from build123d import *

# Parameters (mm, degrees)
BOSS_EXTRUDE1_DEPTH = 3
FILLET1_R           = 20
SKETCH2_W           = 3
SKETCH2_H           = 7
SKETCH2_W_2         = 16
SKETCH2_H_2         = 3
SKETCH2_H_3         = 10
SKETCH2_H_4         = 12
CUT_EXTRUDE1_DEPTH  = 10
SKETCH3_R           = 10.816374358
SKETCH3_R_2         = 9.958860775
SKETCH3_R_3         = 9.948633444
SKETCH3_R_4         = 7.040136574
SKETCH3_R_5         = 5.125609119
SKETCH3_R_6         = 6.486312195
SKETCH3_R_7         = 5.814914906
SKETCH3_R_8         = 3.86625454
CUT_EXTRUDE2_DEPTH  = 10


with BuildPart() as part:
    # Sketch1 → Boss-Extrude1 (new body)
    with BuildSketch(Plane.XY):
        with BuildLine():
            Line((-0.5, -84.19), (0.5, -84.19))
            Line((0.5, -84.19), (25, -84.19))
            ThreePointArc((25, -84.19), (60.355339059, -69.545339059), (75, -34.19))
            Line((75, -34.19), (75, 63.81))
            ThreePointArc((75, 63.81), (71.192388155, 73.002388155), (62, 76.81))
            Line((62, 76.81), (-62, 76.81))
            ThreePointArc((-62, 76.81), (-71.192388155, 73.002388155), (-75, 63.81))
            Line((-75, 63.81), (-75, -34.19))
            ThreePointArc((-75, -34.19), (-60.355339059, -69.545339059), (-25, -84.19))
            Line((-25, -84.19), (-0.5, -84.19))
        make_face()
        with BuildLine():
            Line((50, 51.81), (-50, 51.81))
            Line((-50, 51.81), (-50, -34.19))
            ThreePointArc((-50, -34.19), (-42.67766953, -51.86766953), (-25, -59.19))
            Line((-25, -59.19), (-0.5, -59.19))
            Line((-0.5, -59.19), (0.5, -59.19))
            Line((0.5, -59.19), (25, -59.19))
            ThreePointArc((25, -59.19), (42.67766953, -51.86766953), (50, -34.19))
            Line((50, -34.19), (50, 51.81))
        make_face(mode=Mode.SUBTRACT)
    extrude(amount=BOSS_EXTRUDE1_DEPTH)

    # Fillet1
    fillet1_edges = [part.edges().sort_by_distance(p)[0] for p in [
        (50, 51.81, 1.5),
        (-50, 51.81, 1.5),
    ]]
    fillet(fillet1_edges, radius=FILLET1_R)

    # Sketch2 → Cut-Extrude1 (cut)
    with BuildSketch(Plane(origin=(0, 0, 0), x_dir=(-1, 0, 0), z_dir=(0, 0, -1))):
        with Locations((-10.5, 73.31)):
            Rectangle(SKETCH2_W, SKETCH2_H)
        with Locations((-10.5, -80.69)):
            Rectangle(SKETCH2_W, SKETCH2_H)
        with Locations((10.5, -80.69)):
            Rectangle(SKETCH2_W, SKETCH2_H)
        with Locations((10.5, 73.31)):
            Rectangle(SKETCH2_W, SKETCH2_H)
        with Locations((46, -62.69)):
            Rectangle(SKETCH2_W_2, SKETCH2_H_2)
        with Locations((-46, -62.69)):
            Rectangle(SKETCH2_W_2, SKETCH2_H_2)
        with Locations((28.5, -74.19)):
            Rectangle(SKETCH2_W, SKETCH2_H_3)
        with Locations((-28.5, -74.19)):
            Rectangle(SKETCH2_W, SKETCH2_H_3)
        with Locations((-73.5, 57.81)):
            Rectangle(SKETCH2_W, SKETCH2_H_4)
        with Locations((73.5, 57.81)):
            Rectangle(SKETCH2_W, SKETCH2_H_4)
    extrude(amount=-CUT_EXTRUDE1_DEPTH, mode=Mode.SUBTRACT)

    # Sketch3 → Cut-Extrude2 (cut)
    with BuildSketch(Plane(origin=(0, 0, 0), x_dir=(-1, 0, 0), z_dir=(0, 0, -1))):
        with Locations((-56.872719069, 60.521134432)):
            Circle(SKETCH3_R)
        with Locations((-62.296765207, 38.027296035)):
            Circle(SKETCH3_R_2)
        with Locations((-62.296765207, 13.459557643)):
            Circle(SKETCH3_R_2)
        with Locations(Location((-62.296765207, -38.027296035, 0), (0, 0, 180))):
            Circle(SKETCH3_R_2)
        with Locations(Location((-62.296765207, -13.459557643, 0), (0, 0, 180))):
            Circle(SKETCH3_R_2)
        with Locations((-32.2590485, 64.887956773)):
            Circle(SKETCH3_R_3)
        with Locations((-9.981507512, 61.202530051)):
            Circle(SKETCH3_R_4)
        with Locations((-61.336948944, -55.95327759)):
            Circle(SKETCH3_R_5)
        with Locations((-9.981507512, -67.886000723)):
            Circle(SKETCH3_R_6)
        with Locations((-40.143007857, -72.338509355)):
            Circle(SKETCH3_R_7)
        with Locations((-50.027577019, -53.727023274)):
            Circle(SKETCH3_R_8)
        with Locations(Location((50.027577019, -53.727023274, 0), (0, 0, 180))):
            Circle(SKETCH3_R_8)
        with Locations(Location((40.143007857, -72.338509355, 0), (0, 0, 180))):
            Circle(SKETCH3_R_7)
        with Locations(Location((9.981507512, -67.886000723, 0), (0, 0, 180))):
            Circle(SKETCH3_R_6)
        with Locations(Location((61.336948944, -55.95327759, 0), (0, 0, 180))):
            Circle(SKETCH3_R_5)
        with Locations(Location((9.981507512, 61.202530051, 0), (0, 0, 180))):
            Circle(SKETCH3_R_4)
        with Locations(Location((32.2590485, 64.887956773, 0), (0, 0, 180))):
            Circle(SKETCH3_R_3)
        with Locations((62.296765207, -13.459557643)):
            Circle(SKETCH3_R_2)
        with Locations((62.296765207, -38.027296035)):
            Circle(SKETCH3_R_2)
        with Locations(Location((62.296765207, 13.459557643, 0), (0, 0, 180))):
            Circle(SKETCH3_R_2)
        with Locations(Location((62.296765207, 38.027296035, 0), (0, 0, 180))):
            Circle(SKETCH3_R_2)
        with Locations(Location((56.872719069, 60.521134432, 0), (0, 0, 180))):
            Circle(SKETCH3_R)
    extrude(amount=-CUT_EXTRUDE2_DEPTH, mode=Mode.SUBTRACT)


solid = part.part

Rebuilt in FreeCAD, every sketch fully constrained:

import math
import FreeCAD as App
import Part
import Sketcher
from FreeCAD import Vector


def edges_at(feature, points):
    """Names of the edges that pass closest to the given points."""
    edges = feature.Shape.Edges
    near = lambda p: min(range(len(edges)), key=lambda i: edges[i].distToShape(Part.Vertex(*p))[0])
    return sorted({f"Edge{near(p) + 1}" for p in points})


def add_polygon(sketch, points):
    """Adds a closed chain of lines whose ends are joined by coincident constraints."""
    first, n = sketch.GeometryCount, len(points)
    for a, b in zip(points, points[1:] + points[:1]):
        sketch.addGeometry(Part.LineSegment(App.Vector(*a, 0), App.Vector(*b, 0)), False)
    for i in range(n):
        sketch.addConstraint(Sketcher.Constraint("Coincident", first + i, 2, first + (i + 1) % n, 1))

doc = App.newDocument("Part")
params = doc.addObject("Spreadsheet::Sheet", "Params")
for row, (alias, value) in enumerate([
    ("sketch1_radius", "50 mm"),
    ("sketch1_radius2", "13 mm"),
    ("sketch1_radius3", "25 mm"),
    ("sketch1_width", "124 mm"),
    ("sketch1_height", "98 mm"),
    ("pad1_length", "3 mm"),
    ("fillet_radius", "20 mm"),
    ("sketch2_width", "3 mm"),
    ("sketch2_width2", "16 mm"),
    ("sketch2_height", "7 mm"),
    ("sketch2_height2", "10 mm"),
    ("sketch2_height3", "12 mm"),
    ("pocket1_length", "10 mm"),
    ("pocket2_length", "10 mm"),
], start=1):
    params.set(f"A{row}", alias)
    params.set(f"B{row}", "=" + value)
    params.setAlias(f"B{row}", alias)

body = doc.addObject("PartDesign::Body", "Body")

sketch1 = doc.addObject("Sketcher::SketchObject", "Sketch")
body.addObject(sketch1)
sketch1.AttachmentSupport = (doc.XY_Plane, [""])
sketch1.MapMode = "FlatFace"
sketch1.addGeometry(Part.ArcOfCircle(Part.Circle(Vector(25, -34, 0), Vector(0, 0, 1), 50), math.radians(-90), math.radians(0)), False)
sketch1.addGeometry(Part.LineSegment(Vector(75, -34, 0), Vector(75, 64, 0)), False)
sketch1.addGeometry(Part.ArcOfCircle(Part.Circle(Vector(62, 64, 0), Vector(0, 0, 1), 13), math.radians(0), math.radians(90)), False)
sketch1.addGeometry(Part.LineSegment(Vector(62, 77, 0), Vector(-62, 77, 0)), False)
sketch1.addGeometry(Part.ArcOfCircle(Part.Circle(Vector(-62, 64, 0), Vector(0, 0, 1), 13), math.radians(90), math.radians(180)), False)
sketch1.addGeometry(Part.LineSegment(Vector(-75, 64, 0), Vector(-75, -34, 0)), False)
sketch1.addGeometry(Part.ArcOfCircle(Part.Circle(Vector(-25, -34, 0), Vector(0, 0, 1), 50), math.radians(-180), math.radians(-90)), False)
sketch1.addGeometry(Part.LineSegment(Vector(-25, -84, 0), Vector(25, -84, 0)), False)
sketch1.addGeometry(Part.LineSegment(Vector(-50, 52, 0), Vector(50, 52, 0)), False)
sketch1.addGeometry(Part.LineSegment(Vector(50, 52, 0), Vector(50, -34, 0)), False)
sketch1.addGeometry(Part.ArcOfCircle(Part.Circle(Vector(25, -34, 0), Vector(0, 0, 1), 25), math.radians(-90), math.radians(0)), False)
sketch1.addGeometry(Part.LineSegment(Vector(25, -59, 0), Vector(-25, -59, 0)), False)
sketch1.addGeometry(Part.ArcOfCircle(Part.Circle(Vector(-25, -34, 0), Vector(0, 0, 1), 25), math.radians(180), math.radians(270)), False)
sketch1.addGeometry(Part.LineSegment(Vector(-50, -34, 0), Vector(-50, 52, 0)), False)
sketch1.addConstraint(Sketcher.Constraint("Tangent", 0, 2, 1, 1))
sketch1.addConstraint(Sketcher.Constraint("Tangent", 1, 2, 2, 1))
sketch1.addConstraint(Sketcher.Constraint("Tangent", 2, 2, 3, 1))
sketch1.addConstraint(Sketcher.Constraint("Tangent", 3, 2, 4, 1))
sketch1.addConstraint(Sketcher.Constraint("Tangent", 4, 2, 5, 1))
sketch1.addConstraint(Sketcher.Constraint("Tangent", 5, 2, 6, 1))
sketch1.addConstraint(Sketcher.Constraint("Tangent", 6, 2, 7, 1))
sketch1.addConstraint(Sketcher.Constraint("Tangent", 7, 2, 0, 1))
sketch1.addConstraint(Sketcher.Constraint("Coincident", 8, 2, 9, 1))
sketch1.addConstraint(Sketcher.Constraint("Tangent", 9, 2, 10, 2))
sketch1.addConstraint(Sketcher.Constraint("Tangent", 10, 1, 11, 1))
sketch1.addConstraint(Sketcher.Constraint("Tangent", 11, 2, 12, 2))
sketch1.addConstraint(Sketcher.Constraint("Tangent", 12, 1, 13, 1))
sketch1.addConstraint(Sketcher.Constraint("Coincident", 13, 2, 8, 1))
sketch1.addConstraint(Sketcher.Constraint("Vertical", 1))
sketch1.addConstraint(Sketcher.Constraint("Horizontal", 3))
sketch1.addConstraint(Sketcher.Constraint("Vertical", 5))
sketch1.addConstraint(Sketcher.Constraint("Horizontal", 7))
sketch1.addConstraint(Sketcher.Constraint("Horizontal", 8))
sketch1.addConstraint(Sketcher.Constraint("Vertical", 9))
sketch1.addConstraint(Sketcher.Constraint("Horizontal", 11))
sketch1.addConstraint(Sketcher.Constraint("Vertical", 13))
sketch1.addConstraint(Sketcher.Constraint("Coincident", 10, 3, 0, 3))
sketch1.addConstraint(Sketcher.Constraint("Coincident", 12, 3, 6, 3))
sketch1.addConstraint(Sketcher.Constraint("Equal", 2, 4))
sketch1.addConstraint(Sketcher.Constraint("Equal", 0, 6))
sketch1.addConstraint(Sketcher.Constraint("Radius", 0, 50.0))
sketch1.addConstraint(Sketcher.Constraint("Radius", 2, 13.0))
sketch1.addConstraint(Sketcher.Constraint("Radius", 10, 25.0))
sketch1.addConstraint(Sketcher.Constraint("DistanceX", 3, 2, 3, 1, 124.0))
sketch1.addConstraint(Sketcher.Constraint("DistanceY", 1, 1, 1, 2, 98.0))
sketch1.addConstraint(Sketcher.Constraint("DistanceY", 9, 2, 9, 1, 86.0))
sketch1.addConstraint(Sketcher.Constraint("DistanceX", -1, 1, 0, 3, 25.0))
sketch1.addConstraint(Sketcher.Constraint("DistanceY", 0, 3, -1, 1, 34.19))
sketch1.setExpression("Constraints[26]", "Params.sketch1_radius")
sketch1.setExpression("Constraints[27]", "Params.sketch1_radius2")
sketch1.setExpression("Constraints[28]", "Params.sketch1_radius3")
sketch1.setExpression("Constraints[29]", "Params.sketch1_width")
sketch1.setExpression("Constraints[30]", "Params.sketch1_height")
pad1 = doc.addObject("PartDesign::Pad", "Pad")
body.addObject(pad1)
pad1.Profile = sketch1
pad1.setExpression("Length", "Params.pad1_length")
doc.recompute()

fillet = doc.addObject("PartDesign::Fillet", "Fillet")
body.addObject(fillet)
fillet.Base = (pad1, edges_at(pad1, [(50, 51.81, 1.5), (-50, 51.81, 1.5)]))
fillet.setExpression("Radius", "Params.fillet_radius")

sketch2 = doc.addObject("Sketcher::SketchObject", "Sketch001")
body.addObject(sketch2)
sketch2.AttachmentSupport = (doc.XY_Plane, [""])
sketch2.MapMode = "FlatFace"
add_polygon(sketch2, [(12, 76.8), (12, 69.8), (9, 69.8), (9, 76.8)])
add_polygon(sketch2, [(12, -77.2), (12, -84.2), (9, -84.2), (9, -77.2)])
add_polygon(sketch2, [(-9, -77.2), (-9, -84.2), (-12, -84.2), (-12, -77.2)])
add_polygon(sketch2, [(-9, 76.8), (-9, 69.8), (-12, 69.8), (-12, 76.8)])
add_polygon(sketch2, [(-38, -61.2), (-38, -64.2), (-54, -64.2), (-54, -61.2)])
add_polygon(sketch2, [(54, -61.2), (54, -64.2), (38, -64.2), (38, -61.2)])
add_polygon(sketch2, [(-27, -69.2), (-27, -79.2), (-30, -79.2), (-30, -69.2)])
add_polygon(sketch2, [(30, -69.2), (30, -79.2), (27, -79.2), (27, -69.2)])
add_polygon(sketch2, [(75, 63.8), (75, 51.8), (72, 51.8), (72, 63.8)])
add_polygon(sketch2, [(-72, 63.8), (-72, 51.8), (-75, 51.8), (-75, 63.8)])
sketch2.addConstraint(Sketcher.Constraint("Vertical", 0))
sketch2.addConstraint(Sketcher.Constraint("Horizontal", 1))
sketch2.addConstraint(Sketcher.Constraint("Vertical", 2))
sketch2.addConstraint(Sketcher.Constraint("Horizontal", 3))
sketch2.addConstraint(Sketcher.Constraint("Vertical", 4))
sketch2.addConstraint(Sketcher.Constraint("Horizontal", 5))
sketch2.addConstraint(Sketcher.Constraint("Vertical", 6))
sketch2.addConstraint(Sketcher.Constraint("Horizontal", 7))
sketch2.addConstraint(Sketcher.Constraint("Vertical", 8))
sketch2.addConstraint(Sketcher.Constraint("Horizontal", 9))
sketch2.addConstraint(Sketcher.Constraint("Vertical", 10))
sketch2.addConstraint(Sketcher.Constraint("Horizontal", 11))
sketch2.addConstraint(Sketcher.Constraint("Vertical", 12))
sketch2.addConstraint(Sketcher.Constraint("Horizontal", 13))
sketch2.addConstraint(Sketcher.Constraint("Vertical", 14))
sketch2.addConstraint(Sketcher.Constraint("Horizontal", 15))
sketch2.addConstraint(Sketcher.Constraint("Vertical", 16))
sketch2.addConstraint(Sketcher.Constraint("Horizontal", 17))
sketch2.addConstraint(Sketcher.Constraint("Vertical", 18))
sketch2.addConstraint(Sketcher.Constraint("Horizontal", 19))
sketch2.addConstraint(Sketcher.Constraint("Vertical", 20))
sketch2.addConstraint(Sketcher.Constraint("Horizontal", 21))
sketch2.addConstraint(Sketcher.Constraint("Vertical", 22))
sketch2.addConstraint(Sketcher.Constraint("Horizontal", 23))
sketch2.addConstraint(Sketcher.Constraint("Vertical", 24))
sketch2.addConstraint(Sketcher.Constraint("Horizontal", 25))
sketch2.addConstraint(Sketcher.Constraint("Vertical", 26))
sketch2.addConstraint(Sketcher.Constraint("Horizontal", 27))
sketch2.addConstraint(Sketcher.Constraint("Vertical", 28))
sketch2.addConstraint(Sketcher.Constraint("Horizontal", 29))
sketch2.addConstraint(Sketcher.Constraint("Vertical", 30))
sketch2.addConstraint(Sketcher.Constraint("Horizontal", 31))
sketch2.addConstraint(Sketcher.Constraint("Vertical", 32))
sketch2.addConstraint(Sketcher.Constraint("Horizontal", 33))
sketch2.addConstraint(Sketcher.Constraint("Vertical", 34))
sketch2.addConstraint(Sketcher.Constraint("Horizontal", 35))
sketch2.addConstraint(Sketcher.Constraint("Vertical", 36))
sketch2.addConstraint(Sketcher.Constraint("Horizontal", 37))
sketch2.addConstraint(Sketcher.Constraint("Vertical", 38))
sketch2.addConstraint(Sketcher.Constraint("Horizontal", 39))
sketch2.addConstraint(Sketcher.Constraint("Symmetric", 5, 2, 8, 2, -2))
sketch2.addConstraint(Sketcher.Constraint("Symmetric", 7, 2, 10, 2, -2))
sketch2.addConstraint(Sketcher.Constraint("Symmetric", 1, 2, 12, 2, -2))
sketch2.addConstraint(Sketcher.Constraint("Symmetric", 3, 2, 14, 2, -2))
sketch2.addConstraint(Sketcher.Constraint("Symmetric", 17, 2, 20, 2, -2))
sketch2.addConstraint(Sketcher.Constraint("Symmetric", 19, 2, 22, 2, -2))
sketch2.addConstraint(Sketcher.Constraint("Symmetric", 25, 2, 28, 2, -2))
sketch2.addConstraint(Sketcher.Constraint("Symmetric", 27, 2, 30, 2, -2))
sketch2.addConstraint(Sketcher.Constraint("Symmetric", 33, 2, 36, 2, -2))
sketch2.addConstraint(Sketcher.Constraint("Symmetric", 35, 2, 38, 2, -2))
sketch2.addConstraint(Sketcher.Constraint("Vertical", 3, 2, 4, 2))
sketch2.addConstraint(Sketcher.Constraint("Vertical", 2, 2, 5, 2))
sketch2.addConstraint(Sketcher.Constraint("Equal", 15, 25))
sketch2.addConstraint(Sketcher.Constraint("Equal", 31, 33))
sketch2.addConstraint(Sketcher.Constraint("Equal", 2, 4))
sketch2.addConstraint(Sketcher.Constraint("Equal", 39, 16))
sketch2.addConstraint(Sketcher.Constraint("DistanceX", 1, 2, 1, 1, 3.0))
sketch2.addConstraint(Sketcher.Constraint("DistanceX", 17, 2, 17, 1, 16.0))
sketch2.addConstraint(Sketcher.Constraint("DistanceY", 0, 2, 0, 1, 7.0))
sketch2.addConstraint(Sketcher.Constraint("DistanceY", 24, 2, 24, 1, 10.0))
sketch2.addConstraint(Sketcher.Constraint("DistanceY", 32, 2, 32, 1, 12.0))
sketch2.addConstraint(Sketcher.Constraint("DistanceX", -1, 1, 0, 2, 12.0))
sketch2.addConstraint(Sketcher.Constraint("DistanceX", 16, 2, -1, 1, 38.0))
sketch2.addConstraint(Sketcher.Constraint("DistanceX", 24, 2, -1, 1, 27.0))
sketch2.addConstraint(Sketcher.Constraint("DistanceX", -1, 1, 32, 2, 75.0))
sketch2.addConstraint(Sketcher.Constraint("DistanceY", 4, 2, 0, 2, 154.0))
sketch2.addConstraint(Sketcher.Constraint("DistanceY", 10, 2, 16, 2, 13.0))
sketch2.addConstraint(Sketcher.Constraint("DistanceY", 24, 2, 10, 2, 2.0))
sketch2.addConstraint(Sketcher.Constraint("DistanceY", 32, 2, 0, 2, 18.0))
sketch2.addConstraint(Sketcher.Constraint("DistanceY", -1, 1, 0, 2, 69.81))
sketch2.setExpression("Constraints[96]", "Params.sketch2_width")
sketch2.setExpression("Constraints[97]", "Params.sketch2_width2")
sketch2.setExpression("Constraints[98]", "Params.sketch2_height")
sketch2.setExpression("Constraints[99]", "Params.sketch2_height2")
sketch2.setExpression("Constraints[100]", "Params.sketch2_height3")
pocket1 = doc.addObject("PartDesign::Pocket", "Pocket")
body.addObject(pocket1)
pocket1.Profile = sketch2
pocket1.setExpression("Length", "Params.pocket1_length")
pocket1.Reversed = True

sketch3 = doc.addObject("Sketcher::SketchObject", "Sketch002")
body.addObject(sketch3)
sketch3.AttachmentSupport = (doc.XY_Plane, [""])
sketch3.MapMode = "FlatFace"
sketch3.addGeometry(Part.Circle(Vector(56.9, 60.5, 0), Vector(0, 0, 1), 10.8), False)
sketch3.addGeometry(Part.Circle(Vector(62.3, 38, 0), Vector(0, 0, 1), 10), False)
sketch3.addGeometry(Part.Circle(Vector(62.3, 13.5, 0), Vector(0, 0, 1), 10), False)
sketch3.addGeometry(Part.Circle(Vector(62.3, -38, 0), Vector(0, 0, 1), 10), False)
sketch3.addGeometry(Part.Circle(Vector(62.3, -13.5, 0), Vector(0, 0, 1), 10), False)
sketch3.addGeometry(Part.Circle(Vector(32.3, 64.9, 0), Vector(0, 0, 1), 9.9), False)
sketch3.addGeometry(Part.Circle(Vector(10, 61.2, 0), Vector(0, 0, 1), 7), False)
sketch3.addGeometry(Part.Circle(Vector(61.3, -56, 0), Vector(0, 0, 1), 5.1), False)
sketch3.addGeometry(Part.Circle(Vector(10, -67.9, 0), Vector(0, 0, 1), 6.5), False)
sketch3.addGeometry(Part.Circle(Vector(40.1, -72.3, 0), Vector(0, 0, 1), 5.8), False)
sketch3.addGeometry(Part.Circle(Vector(50, -53.7, 0), Vector(0, 0, 1), 3.9), False)
sketch3.addGeometry(Part.Circle(Vector(-50, -53.7, 0), Vector(0, 0, 1), 3.9), False)
sketch3.addGeometry(Part.Circle(Vector(-40.1, -72.3, 0), Vector(0, 0, 1), 5.8), False)
sketch3.addGeometry(Part.Circle(Vector(-10, -67.9, 0), Vector(0, 0, 1), 6.5), False)
sketch3.addGeometry(Part.Circle(Vector(-61.3, -56, 0), Vector(0, 0, 1), 5.1), False)
sketch3.addGeometry(Part.Circle(Vector(-10, 61.2, 0), Vector(0, 0, 1), 7), False)
sketch3.addGeometry(Part.Circle(Vector(-32.3, 64.9, 0), Vector(0, 0, 1), 9.9), False)
sketch3.addGeometry(Part.Circle(Vector(-62.3, -13.5, 0), Vector(0, 0, 1), 10), False)
sketch3.addGeometry(Part.Circle(Vector(-62.3, -38, 0), Vector(0, 0, 1), 10), False)
sketch3.addGeometry(Part.Circle(Vector(-62.3, 13.5, 0), Vector(0, 0, 1), 10), False)
sketch3.addGeometry(Part.Circle(Vector(-62.3, 38, 0), Vector(0, 0, 1), 10), False)
sketch3.addGeometry(Part.Circle(Vector(-56.9, 60.5, 0), Vector(0, 0, 1), 10.8), False)
sketch3.addConstraint(Sketcher.Constraint("Equal", 1, 2))
sketch3.addConstraint(Sketcher.Constraint("Equal", 2, 3))
sketch3.addConstraint(Sketcher.Constraint("Equal", 3, 4))
sketch3.addConstraint(Sketcher.Constraint("Equal", 10, 11))
sketch3.addConstraint(Sketcher.Constraint("Equal", 9, 12))
sketch3.addConstraint(Sketcher.Constraint("Equal", 8, 13))
sketch3.addConstraint(Sketcher.Constraint("Equal", 7, 14))
sketch3.addConstraint(Sketcher.Constraint("Equal", 6, 15))
sketch3.addConstraint(Sketcher.Constraint("Equal", 5, 16))
sketch3.addConstraint(Sketcher.Constraint("Equal", 4, 17))
sketch3.addConstraint(Sketcher.Constraint("Equal", 17, 18))
sketch3.addConstraint(Sketcher.Constraint("Equal", 18, 19))
sketch3.addConstraint(Sketcher.Constraint("Equal", 19, 20))
sketch3.addConstraint(Sketcher.Constraint("Equal", 0, 21))
sketch3.addConstraint(Sketcher.Constraint("Symmetric", 2, 3, 17, 3, -1, 1))
sketch3.addConstraint(Sketcher.Constraint("Symmetric", 1, 3, 18, 3, -1, 1))
sketch3.addConstraint(Sketcher.Constraint("Symmetric", 4, 3, 19, 3, -1, 1))
sketch3.addConstraint(Sketcher.Constraint("Symmetric", 3, 3, 20, 3, -1, 1))
sketch3.addConstraint(Sketcher.Constraint("Symmetric", 10, 3, 11, 3, -2))
sketch3.addConstraint(Sketcher.Constraint("Symmetric", 9, 3, 12, 3, -2))
sketch3.addConstraint(Sketcher.Constraint("Symmetric", 8, 3, 13, 3, -2))
sketch3.addConstraint(Sketcher.Constraint("Symmetric", 7, 3, 14, 3, -2))
sketch3.addConstraint(Sketcher.Constraint("Symmetric", 6, 3, 15, 3, -2))
sketch3.addConstraint(Sketcher.Constraint("Symmetric", 5, 3, 16, 3, -2))
sketch3.addConstraint(Sketcher.Constraint("Symmetric", 4, 3, 17, 3, -2))
sketch3.addConstraint(Sketcher.Constraint("Symmetric", 3, 3, 18, 3, -2))
sketch3.addConstraint(Sketcher.Constraint("Symmetric", 0, 3, 21, 3, -2))
sketch3.addConstraint(Sketcher.Constraint("Vertical", 1, 3, 2, 3))
sketch3.addConstraint(Sketcher.Constraint("Vertical", 6, 3, 8, 3))
sketch3.addConstraint(Sketcher.Constraint("Diameter", 0, 21.632749))
sketch3.addConstraint(Sketcher.Constraint("Diameter", 1, 19.917722))
sketch3.addConstraint(Sketcher.Constraint("Diameter", 7, 10.251218))
sketch3.addConstraint(Sketcher.Constraint("Diameter", 9, 11.62983))
sketch3.addConstraint(Sketcher.Constraint("Diameter", 10, 7.732509))
sketch3.addConstraint(Sketcher.Constraint("Diameter", 5, 19.897267))
sketch3.addConstraint(Sketcher.Constraint("Diameter", 6, 14.080273))
sketch3.addConstraint(Sketcher.Constraint("Diameter", 8, 12.972624))
sketch3.addConstraint(Sketcher.Constraint("DistanceY", 8, 3, -1, 1, 67.886001))
sketch3.addConstraint(Sketcher.Constraint("DistanceY", 2, 3, 5, 3, 51.428399))
sketch3.addConstraint(Sketcher.Constraint("DistanceX", 8, 3, 9, 3, 30.1615))
sketch3.addConstraint(Sketcher.Constraint("DistanceX", -1, 1, 0, 3, 56.872719))
sketch3.addConstraint(Sketcher.Constraint("DistanceX", -1, 1, 5, 3, 32.259048))
sketch3.addConstraint(Sketcher.Constraint("DistanceY", -1, 1, 6, 3, 61.20253))
sketch3.addConstraint(Sketcher.Constraint("DistanceX", -1, 1, 7, 3, 61.336949))
sketch3.addConstraint(Sketcher.Constraint("DistanceY", 9, 3, -1, 1, 72.338509))
sketch3.addConstraint(Sketcher.Constraint("DistanceY", 1, 3, 0, 3, 22.493838))
sketch3.addConstraint(Sketcher.Constraint("DistanceY", 2, 3, 1, 3, 24.567738))
sketch3.addConstraint(Sketcher.Constraint("DistanceY", 3, 3, 0, 3, 98.54843))
sketch3.addConstraint(Sketcher.Constraint("DistanceX", 6, 3, 5, 3, 22.277541))
sketch3.addConstraint(Sketcher.Constraint("DistanceY", 7, 3, 3, 3, 17.925982))
sketch3.addConstraint(Sketcher.Constraint("DistanceX", 10, 3, 7, 3, 11.309372))
sketch3.addConstraint(Sketcher.Constraint("DistanceX", 10, 3, 3, 3, 12.269188))
sketch3.addConstraint(Sketcher.Constraint("DistanceY", 11, 3, 19, 3, 67.186581))
pocket2 = doc.addObject("PartDesign::Pocket", "Pocket001")
body.addObject(pocket2)
pocket2.Profile = sketch3
pocket2.setExpression("Length", "Params.pocket2_length")
pocket2.Reversed = True

doc.recompute()
